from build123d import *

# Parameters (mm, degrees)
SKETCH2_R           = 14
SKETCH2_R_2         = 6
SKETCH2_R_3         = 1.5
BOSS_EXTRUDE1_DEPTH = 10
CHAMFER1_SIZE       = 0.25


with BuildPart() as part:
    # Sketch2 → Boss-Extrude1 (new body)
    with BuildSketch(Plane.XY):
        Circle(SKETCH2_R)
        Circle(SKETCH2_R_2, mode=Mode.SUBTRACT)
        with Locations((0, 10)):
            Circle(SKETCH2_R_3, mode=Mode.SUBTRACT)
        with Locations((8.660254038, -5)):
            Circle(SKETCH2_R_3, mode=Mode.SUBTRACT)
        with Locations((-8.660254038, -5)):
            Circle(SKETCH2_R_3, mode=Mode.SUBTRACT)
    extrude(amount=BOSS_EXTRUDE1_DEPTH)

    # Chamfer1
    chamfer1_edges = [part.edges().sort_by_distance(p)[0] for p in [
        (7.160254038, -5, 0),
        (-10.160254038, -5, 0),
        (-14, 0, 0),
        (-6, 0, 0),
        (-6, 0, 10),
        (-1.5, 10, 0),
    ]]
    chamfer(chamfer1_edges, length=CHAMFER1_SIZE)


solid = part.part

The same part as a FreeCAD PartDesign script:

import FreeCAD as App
import Part
import Sketcher


def edges_at(feature, points):
    """Names of the edges that pass closest to the given points."""
    edges = feature.Shape.Edges
    near = lambda p: min(range(len(edges)), key=lambda i: edges[i].distToShape(Part.Vertex(*p))[0])
    return sorted({f"Edge{near(p) + 1}" for p in points})

doc = App.newDocument("Part")
body = doc.addObject("PartDesign::Body", "Body")

# Sketch on XY plane
sketch1 = body.newObject("Sketcher::SketchObject", "Sketch")
sketch1.AttachmentSupport = (doc.getObject("XY_Plane"), [""])
sketch1.MapMode = "FlatFace"
sketch1.addGeometry(Part.Circle(App.Vector(0, 0, 0), App.Vector(0, 0, 1), 14), False)
sketch1.addGeometry(Part.Circle(App.Vector(-8.660254, -5, 0), App.Vector(0, 0, 1), 1.5), False)
sketch1.addGeometry(Part.Circle(App.Vector(8.660254, -5, 0), App.Vector(0, 0, 1), 1.5), False)
sketch1.addGeometry(Part.Circle(App.Vector(0, 0, 0), App.Vector(0, 0, 1), 6), False)
sketch1.addGeometry(Part.Circle(App.Vector(0, 10, 0), App.Vector(0, 0, 1), 1.5), False)
sketch1.addConstraint(Sketcher.Constraint("Coincident", 0, 3, -1, 1))
sketch1.addConstraint(Sketcher.Constraint("Coincident", 3, 3, -1, 1))
sketch1.addConstraint(Sketcher.Constraint("Equal", 1, 2))
sketch1.addConstraint(Sketcher.Constraint("Equal", 2, 4))
sketch1.addConstraint(Sketcher.Constraint("Symmetric", 1, 3, 2, 3, -2))
sketch1.addConstraint(Sketcher.Constraint("PointOnObject", 4, 3, -2))
sketch1.addConstraint(Sketcher.Constraint("Diameter", 0, 28.0))
sketch1.addConstraint(Sketcher.Constraint("Diameter", 1, 3.0))
sketch1.addConstraint(Sketcher.Constraint("Diameter", 3, 12.0))
sketch1.addConstraint(Sketcher.Constraint("DistanceY", 1, 3, -1, 1, 5.0))
sketch1.addConstraint(Sketcher.Constraint("DistanceY", -1, 1, 4, 3, 10.0))
sketch1.addConstraint(Sketcher.Constraint("DistanceX", 1, 3, 2, 3, 17.320508))
pad1 = body.newObject("PartDesign::Pad", "Pad")
pad1.Profile = sketch1
pad1.Length = 10
doc.recompute()

chamfer = body.newObject("PartDesign::Chamfer", "Chamfer")
chamfer.Base = (pad1, edges_at(pad1, [
    (7.16, -5, 0),
    (-10.16, -5, 0),
    (-14, 0, 0),
    (-6, 0, 0),
    (-6, 0, 10),
    (-1.5, 10, 0),
]))
chamfer.Size = 0.25

doc.recompute()
